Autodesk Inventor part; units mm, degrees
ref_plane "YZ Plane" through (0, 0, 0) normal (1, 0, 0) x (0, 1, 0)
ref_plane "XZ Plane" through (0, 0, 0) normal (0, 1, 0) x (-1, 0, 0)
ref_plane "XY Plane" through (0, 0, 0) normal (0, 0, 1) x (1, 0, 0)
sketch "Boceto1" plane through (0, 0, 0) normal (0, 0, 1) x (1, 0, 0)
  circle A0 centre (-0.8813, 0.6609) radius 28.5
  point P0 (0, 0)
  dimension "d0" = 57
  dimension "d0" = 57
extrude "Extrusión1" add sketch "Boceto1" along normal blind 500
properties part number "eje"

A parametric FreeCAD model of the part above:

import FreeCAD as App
import Part
import Sketcher

doc = App.newDocument("Part")
body = doc.addObject("PartDesign::Body", "Body")

# Sketch on XY plane
sketch1 = body.newObject("Sketcher::SketchObject", "Sketch")
sketch1.AttachmentSupport = (doc.getObject("XY_Plane"), [""])
sketch1.MapMode = "FlatFace"
sketch1.addGeometry(Part.Circle(App.Vector(-0.8813, 0.6609, 0), App.Vector(0, 0, 1), 28.5), False)
sketch1.addConstraint([
    Sketcher.Constraint("Diameter", 0, 57.0),
    Sketcher.Constraint("DistanceY", -1, 1, 0, 3, 0.661),
    Sketcher.Constraint("DistanceX", 0, 3, -1, 1, 0.8813),
])
pad1 = body.newObject("PartDesign::Pad", "Pad")
pad1.Profile = sketch1
pad1.Length = 500

doc.recompute()
